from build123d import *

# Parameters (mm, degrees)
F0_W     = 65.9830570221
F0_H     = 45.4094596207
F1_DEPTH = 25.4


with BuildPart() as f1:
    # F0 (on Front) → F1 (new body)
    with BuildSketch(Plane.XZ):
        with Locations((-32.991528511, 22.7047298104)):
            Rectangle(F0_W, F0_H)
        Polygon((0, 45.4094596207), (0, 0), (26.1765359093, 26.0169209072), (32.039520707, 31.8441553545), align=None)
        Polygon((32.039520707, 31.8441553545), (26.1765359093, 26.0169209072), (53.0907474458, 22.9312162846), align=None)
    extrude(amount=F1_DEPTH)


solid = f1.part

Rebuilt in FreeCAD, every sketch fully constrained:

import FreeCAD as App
import Part
import Sketcher

V = App.Vector
Q = App.Units.Quantity


def add_polygon(sketch, points):
    """Adds a closed chain of lines whose ends are joined by coincident constraints."""
    first, n = sketch.GeometryCount, len(points)
    for a, b in zip(points, points[1:] + points[:1]):
        sketch.addGeometry(Part.LineSegment(App.Vector(*a, 0), App.Vector(*b, 0)), False)
    for i in range(n):
        sketch.addConstraint(Sketcher.Constraint("Coincident", first + i, 2, first + (i + 1) % n, 1))

doc = App.newDocument("Part")
body = doc.addObject("PartDesign::Body", "Body")

# Sketch on XZ plane
sketch1 = doc.addObject("Sketcher::SketchObject", "Sketch")
body.addObject(sketch1)
sketch1.AttachmentSupport = (doc.XZ_Plane, [""])
sketch1.MapMode = "FlatFace"
add_polygon(sketch1, [(-66, 45), (-66, 0), (0, 0), (26, 26), (53, 23), (32, 32), (0, 45)])  # lines 0-6
sketch1.addConstraint([
    Sketcher.Constraint("Vertical", 0),
    Sketcher.Constraint("Horizontal", 1),
    Sketcher.Constraint("Horizontal", 6),
    Sketcher.Constraint("Coincident", 1, 2, -1, 1),
    Sketcher.Constraint("PointOnObject", 5, 2, -2),
    Sketcher.Constraint("Parallel", 4, 5),
    Sketcher.Constraint("DistanceY", 0, 2, 0, 1, 45.40946),
    Sketcher.Constraint("Distance", 2, 36.90652),
    Sketcher.Constraint("Distance", 3, 27.090522),
    Sketcher.Constraint("Distance", 4, 22.860329),
    Sketcher.Constraint("DistanceX", 1, 1, 1, 2, 65.983057),
    Sketcher.Constraint("DistanceY", -1, 1, 2, 2, 26.016921),
    Sketcher.Constraint("DistanceX", -1, 1, 4, 2, 32.039521),
])
pad1 = doc.addObject("PartDesign::Pad", "Pad")
body.addObject(pad1)
pad1.Profile = sketch1
pad1.Length = Q("1 in")

doc.recompute()
